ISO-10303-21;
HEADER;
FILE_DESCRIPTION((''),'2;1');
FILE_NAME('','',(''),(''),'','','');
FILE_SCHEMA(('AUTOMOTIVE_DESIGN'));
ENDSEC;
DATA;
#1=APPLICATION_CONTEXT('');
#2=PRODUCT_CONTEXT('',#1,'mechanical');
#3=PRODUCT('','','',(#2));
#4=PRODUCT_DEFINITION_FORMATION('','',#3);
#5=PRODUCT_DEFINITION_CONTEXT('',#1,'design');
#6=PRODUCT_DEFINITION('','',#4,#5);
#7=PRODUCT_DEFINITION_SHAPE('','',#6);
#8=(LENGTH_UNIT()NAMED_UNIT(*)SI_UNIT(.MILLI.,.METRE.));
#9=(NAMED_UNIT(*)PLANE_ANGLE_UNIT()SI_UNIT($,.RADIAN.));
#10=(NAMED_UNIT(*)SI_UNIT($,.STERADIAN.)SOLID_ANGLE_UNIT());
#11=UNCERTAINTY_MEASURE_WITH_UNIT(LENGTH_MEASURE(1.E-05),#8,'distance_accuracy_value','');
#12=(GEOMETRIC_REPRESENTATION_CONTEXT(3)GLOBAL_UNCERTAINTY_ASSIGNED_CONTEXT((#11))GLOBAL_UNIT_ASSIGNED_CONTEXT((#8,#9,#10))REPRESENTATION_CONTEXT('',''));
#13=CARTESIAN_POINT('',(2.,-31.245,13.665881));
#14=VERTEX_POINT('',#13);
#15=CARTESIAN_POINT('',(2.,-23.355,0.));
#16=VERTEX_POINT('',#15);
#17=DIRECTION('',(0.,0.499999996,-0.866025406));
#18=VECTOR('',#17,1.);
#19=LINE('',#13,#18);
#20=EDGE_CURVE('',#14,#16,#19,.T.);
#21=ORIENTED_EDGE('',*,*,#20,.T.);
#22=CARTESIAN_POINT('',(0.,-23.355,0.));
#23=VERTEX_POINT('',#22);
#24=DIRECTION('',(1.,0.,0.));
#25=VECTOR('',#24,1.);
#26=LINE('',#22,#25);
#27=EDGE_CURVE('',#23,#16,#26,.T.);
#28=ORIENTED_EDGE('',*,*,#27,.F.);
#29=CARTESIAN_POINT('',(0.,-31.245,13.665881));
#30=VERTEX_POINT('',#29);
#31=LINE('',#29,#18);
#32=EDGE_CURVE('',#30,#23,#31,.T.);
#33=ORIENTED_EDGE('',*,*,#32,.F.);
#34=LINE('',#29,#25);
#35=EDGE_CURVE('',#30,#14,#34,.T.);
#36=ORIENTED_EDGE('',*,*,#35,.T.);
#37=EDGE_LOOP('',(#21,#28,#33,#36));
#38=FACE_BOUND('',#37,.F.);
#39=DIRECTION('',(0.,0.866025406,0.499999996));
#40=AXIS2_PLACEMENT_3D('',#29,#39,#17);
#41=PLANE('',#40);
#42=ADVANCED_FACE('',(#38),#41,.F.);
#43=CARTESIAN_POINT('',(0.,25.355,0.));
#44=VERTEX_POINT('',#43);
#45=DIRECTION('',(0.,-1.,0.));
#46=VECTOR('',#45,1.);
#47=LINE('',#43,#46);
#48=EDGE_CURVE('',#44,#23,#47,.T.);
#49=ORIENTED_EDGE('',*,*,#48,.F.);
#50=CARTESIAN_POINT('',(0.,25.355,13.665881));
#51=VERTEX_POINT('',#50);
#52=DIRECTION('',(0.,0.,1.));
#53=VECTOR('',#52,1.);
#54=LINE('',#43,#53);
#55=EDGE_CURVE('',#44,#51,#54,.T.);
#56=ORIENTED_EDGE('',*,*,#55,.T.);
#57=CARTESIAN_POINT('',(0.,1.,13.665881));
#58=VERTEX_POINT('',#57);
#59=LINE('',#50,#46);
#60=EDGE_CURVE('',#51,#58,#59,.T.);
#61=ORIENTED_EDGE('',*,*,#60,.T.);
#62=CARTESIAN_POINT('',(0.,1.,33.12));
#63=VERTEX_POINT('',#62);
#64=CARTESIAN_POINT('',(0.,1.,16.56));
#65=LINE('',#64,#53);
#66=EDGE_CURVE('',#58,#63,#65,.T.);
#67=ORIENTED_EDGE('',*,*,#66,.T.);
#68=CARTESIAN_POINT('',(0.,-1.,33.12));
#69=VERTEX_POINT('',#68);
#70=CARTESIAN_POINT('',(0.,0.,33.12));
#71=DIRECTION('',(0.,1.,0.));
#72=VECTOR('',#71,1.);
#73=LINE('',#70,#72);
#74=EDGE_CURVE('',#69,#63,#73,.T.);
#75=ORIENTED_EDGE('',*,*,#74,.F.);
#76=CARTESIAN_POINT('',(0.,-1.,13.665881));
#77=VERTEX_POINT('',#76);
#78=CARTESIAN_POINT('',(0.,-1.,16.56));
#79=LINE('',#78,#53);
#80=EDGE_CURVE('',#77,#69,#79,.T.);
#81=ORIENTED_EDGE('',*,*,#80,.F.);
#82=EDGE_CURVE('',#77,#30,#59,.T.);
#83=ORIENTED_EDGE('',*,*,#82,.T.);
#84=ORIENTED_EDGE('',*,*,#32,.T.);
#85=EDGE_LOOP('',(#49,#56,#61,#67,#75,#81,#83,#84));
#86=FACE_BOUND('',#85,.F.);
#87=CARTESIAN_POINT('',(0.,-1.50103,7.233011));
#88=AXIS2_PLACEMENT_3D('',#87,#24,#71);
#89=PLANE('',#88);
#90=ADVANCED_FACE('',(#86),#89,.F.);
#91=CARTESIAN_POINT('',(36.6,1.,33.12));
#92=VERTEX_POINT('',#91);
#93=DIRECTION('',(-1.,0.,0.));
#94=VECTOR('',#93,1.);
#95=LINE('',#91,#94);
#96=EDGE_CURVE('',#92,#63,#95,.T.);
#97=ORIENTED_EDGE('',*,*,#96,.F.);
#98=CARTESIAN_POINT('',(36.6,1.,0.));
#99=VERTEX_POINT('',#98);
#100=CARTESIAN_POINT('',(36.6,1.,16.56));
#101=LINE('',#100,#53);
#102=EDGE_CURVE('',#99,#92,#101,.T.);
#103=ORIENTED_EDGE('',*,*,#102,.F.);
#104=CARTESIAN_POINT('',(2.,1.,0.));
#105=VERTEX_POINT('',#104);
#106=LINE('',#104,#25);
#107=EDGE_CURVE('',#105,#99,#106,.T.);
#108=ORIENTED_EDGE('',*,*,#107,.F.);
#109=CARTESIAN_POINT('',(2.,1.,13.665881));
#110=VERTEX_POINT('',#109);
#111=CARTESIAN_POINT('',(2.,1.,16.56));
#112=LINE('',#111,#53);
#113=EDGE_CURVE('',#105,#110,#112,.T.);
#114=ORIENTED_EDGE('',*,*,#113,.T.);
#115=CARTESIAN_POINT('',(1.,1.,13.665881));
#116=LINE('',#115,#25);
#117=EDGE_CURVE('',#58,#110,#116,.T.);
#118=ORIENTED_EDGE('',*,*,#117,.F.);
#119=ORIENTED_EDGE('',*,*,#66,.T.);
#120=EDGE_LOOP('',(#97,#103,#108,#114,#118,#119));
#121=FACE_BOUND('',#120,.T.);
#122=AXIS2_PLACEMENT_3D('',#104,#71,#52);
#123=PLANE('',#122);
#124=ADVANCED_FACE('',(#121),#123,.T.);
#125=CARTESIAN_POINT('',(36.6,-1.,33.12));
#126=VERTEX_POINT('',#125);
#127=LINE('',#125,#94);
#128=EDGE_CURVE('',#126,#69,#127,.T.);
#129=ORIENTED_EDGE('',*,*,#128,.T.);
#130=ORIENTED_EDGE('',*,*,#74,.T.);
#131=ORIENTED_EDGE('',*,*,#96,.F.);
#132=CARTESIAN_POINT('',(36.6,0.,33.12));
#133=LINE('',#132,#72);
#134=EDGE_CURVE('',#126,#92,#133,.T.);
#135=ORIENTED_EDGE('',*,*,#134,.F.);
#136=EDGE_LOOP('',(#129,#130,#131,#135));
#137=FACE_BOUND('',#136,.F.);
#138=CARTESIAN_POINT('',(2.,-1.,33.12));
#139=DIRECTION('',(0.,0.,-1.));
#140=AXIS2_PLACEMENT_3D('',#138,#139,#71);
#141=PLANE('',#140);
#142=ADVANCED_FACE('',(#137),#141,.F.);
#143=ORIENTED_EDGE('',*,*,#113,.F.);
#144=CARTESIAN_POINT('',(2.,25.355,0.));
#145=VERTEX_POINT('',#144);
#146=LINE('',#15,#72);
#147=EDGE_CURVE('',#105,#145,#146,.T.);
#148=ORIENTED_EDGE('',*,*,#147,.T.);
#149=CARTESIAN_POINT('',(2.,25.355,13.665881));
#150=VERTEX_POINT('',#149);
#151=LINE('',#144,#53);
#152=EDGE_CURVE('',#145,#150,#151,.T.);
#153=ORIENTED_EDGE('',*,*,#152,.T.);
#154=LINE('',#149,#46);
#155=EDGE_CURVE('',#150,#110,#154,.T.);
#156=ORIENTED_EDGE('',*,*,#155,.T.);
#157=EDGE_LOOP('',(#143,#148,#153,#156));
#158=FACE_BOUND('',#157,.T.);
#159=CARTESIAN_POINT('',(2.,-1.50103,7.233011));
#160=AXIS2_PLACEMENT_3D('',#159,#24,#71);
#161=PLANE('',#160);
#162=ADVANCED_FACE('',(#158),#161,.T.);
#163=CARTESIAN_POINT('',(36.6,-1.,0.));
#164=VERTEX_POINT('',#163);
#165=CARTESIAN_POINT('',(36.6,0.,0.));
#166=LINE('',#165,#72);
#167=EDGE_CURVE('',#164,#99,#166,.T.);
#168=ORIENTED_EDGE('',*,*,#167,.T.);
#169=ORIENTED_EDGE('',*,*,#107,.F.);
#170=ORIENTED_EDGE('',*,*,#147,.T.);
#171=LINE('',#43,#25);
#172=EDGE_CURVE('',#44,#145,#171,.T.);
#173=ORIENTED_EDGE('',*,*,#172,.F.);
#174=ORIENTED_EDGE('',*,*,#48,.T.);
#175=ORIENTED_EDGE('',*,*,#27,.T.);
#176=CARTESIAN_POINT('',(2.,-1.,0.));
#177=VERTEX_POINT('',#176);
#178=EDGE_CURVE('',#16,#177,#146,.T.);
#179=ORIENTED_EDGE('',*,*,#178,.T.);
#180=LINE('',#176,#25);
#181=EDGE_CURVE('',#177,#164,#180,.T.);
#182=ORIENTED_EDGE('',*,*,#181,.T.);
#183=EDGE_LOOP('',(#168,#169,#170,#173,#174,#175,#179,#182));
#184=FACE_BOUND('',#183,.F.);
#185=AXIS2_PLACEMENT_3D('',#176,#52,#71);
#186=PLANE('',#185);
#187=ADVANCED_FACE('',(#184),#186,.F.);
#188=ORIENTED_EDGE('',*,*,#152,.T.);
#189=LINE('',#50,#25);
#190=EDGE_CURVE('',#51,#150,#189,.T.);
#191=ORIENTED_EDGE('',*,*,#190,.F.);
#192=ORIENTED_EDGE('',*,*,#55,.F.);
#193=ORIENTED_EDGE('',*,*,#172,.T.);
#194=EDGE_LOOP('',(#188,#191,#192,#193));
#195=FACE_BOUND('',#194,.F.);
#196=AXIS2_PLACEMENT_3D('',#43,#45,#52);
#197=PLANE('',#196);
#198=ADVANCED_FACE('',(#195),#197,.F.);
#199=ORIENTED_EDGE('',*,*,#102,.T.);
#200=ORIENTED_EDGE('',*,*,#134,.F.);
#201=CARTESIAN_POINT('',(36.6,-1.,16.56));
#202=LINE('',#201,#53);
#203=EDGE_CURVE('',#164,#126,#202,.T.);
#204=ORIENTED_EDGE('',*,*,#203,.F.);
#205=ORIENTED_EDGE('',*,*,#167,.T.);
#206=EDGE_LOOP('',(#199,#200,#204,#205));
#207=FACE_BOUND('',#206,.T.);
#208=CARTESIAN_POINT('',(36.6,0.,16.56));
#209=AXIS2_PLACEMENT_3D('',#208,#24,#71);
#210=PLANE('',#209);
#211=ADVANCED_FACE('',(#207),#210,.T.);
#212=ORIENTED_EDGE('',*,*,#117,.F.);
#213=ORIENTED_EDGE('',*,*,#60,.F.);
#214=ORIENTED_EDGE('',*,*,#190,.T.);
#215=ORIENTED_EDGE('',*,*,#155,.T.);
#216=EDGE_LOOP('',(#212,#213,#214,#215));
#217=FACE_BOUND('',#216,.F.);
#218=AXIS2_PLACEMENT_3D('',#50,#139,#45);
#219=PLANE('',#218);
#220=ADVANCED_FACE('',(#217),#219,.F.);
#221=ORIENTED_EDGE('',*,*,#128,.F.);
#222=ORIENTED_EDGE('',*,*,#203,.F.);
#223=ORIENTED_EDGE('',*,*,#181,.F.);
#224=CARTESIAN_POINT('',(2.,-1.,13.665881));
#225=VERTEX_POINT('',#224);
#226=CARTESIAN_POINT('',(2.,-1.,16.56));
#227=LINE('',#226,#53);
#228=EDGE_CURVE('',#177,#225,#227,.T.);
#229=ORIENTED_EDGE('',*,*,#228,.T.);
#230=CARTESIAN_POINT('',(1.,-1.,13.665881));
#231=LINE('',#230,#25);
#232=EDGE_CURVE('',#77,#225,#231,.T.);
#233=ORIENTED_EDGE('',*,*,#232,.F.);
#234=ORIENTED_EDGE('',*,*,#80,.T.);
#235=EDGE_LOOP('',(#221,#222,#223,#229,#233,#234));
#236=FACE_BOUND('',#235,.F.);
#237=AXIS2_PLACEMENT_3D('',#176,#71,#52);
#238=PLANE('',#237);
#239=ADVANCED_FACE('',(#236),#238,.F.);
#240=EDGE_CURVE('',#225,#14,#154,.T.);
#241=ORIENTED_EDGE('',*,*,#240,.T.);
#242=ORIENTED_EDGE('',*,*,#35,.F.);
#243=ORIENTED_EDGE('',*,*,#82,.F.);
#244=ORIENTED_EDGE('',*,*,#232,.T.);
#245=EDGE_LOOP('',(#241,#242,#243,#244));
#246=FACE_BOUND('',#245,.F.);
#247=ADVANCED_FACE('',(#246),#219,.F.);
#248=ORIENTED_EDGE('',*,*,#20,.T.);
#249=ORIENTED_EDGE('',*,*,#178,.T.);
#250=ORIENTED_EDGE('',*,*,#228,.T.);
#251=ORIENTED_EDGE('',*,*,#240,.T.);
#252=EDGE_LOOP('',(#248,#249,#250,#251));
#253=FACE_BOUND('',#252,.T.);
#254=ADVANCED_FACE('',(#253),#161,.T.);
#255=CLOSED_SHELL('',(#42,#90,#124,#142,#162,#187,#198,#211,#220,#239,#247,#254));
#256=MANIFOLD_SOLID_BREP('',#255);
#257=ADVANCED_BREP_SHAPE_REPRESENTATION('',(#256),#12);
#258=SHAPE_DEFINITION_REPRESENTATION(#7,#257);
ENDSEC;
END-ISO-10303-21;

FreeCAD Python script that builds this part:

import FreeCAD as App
import Part
import Sketcher
Q = App.Units.Quantity

doc = App.newDocument("Part")
params = doc.addObject("Spreadsheet::Sheet", "Params")
for row, (alias, value) in enumerate([
    ("sketch1_width", "56.6 mm"),
    ("sketch1_width2", "48.71 mm"),
    ("pad1_length", "2 mm"),
    ("sketch2_width", "2 mm"),
    ("sketch2_height", "33.12 mm"),
    ("pad2_length", "34.6 mm"),
    ("pad2_length2", "2 mm"),
], start=1):
    params.set(f"A{row}", alias)
    params.set(f"B{row}", "=" + value)
    params.setAlias(f"B{row}", alias)

body = doc.addObject("PartDesign::Body", "Body")

sketch1 = doc.addObject("Sketcher::SketchObject", "Sketch")
body.addObject(sketch1)
sketch1.AttachmentSupport = (doc.YZ_Plane, [""])
sketch1.MapMode = "FlatFace"
sketch1.addGeometry([
    Part.LineSegment(App.Vector(-23, 0, 0), App.Vector(25, 0, 0)),
    Part.LineSegment(App.Vector(25, 0, 0), App.Vector(25, 14, 0)),
    Part.LineSegment(App.Vector(25, 14, 0), App.Vector(-31, 14, 0)),
    Part.LineSegment(App.Vector(-31, 14, 0), App.Vector(-23, 0, 0)),
], False)
sketch1.addConstraint([
    Sketcher.Constraint("Coincident", 0, 2, 1, 1),
    Sketcher.Constraint("Coincident", 1, 2, 2, 1),
    Sketcher.Constraint("Coincident", 2, 2, 3, 1),
    Sketcher.Constraint("Coincident", 3, 2, 0, 1),
    Sketcher.Constraint("Horizontal", 0),
    Sketcher.Constraint("Vertical", 1),
    Sketcher.Constraint("Horizontal", 2),
    Sketcher.Constraint("PointOnObject", 0, 2, -1),
    Sketcher.Constraint("Angle", 3, Q("-60 deg")),
    Sketcher.Constraint("DistanceX", 2, 2, 2, 1, Q("56.6 mm")),
    Sketcher.Constraint("DistanceX", 0, 1, 0, 2, Q("48.71 mm")),
    Sketcher.Constraint("DistanceX", -1, 1, 0, 2, Q("25.355 mm")),
])
sketch1.setExpression("Constraints[9]", "Params.sketch1_width")
sketch1.setExpression("Constraints[10]", "Params.sketch1_width2")
pad1 = doc.addObject("PartDesign::Pad", "Pad")
body.addObject(pad1)
pad1.Profile = sketch1
pad1.setExpression("Length", "Params.pad1_length")

sketch2 = doc.addObject("Sketcher::SketchObject", "Sketch001")
body.addObject(sketch2)
sketch2.AttachmentSupport = (doc.YZ_Plane, [""])
sketch2.MapMode = "FlatFace"
sketch2.AttachmentOffset = App.Placement(App.Vector(0, 0, 2), App.Rotation())
sketch2.addGeometry([
    Part.LineSegment(App.Vector(-1, 33.1, 0), App.Vector(-1, 0, 0)),
    Part.LineSegment(App.Vector(-1, 0, 0), App.Vector(1, 0, 0)),
    Part.LineSegment(App.Vector(1, 0, 0), App.Vector(1, 33.1, 0)),
    Part.LineSegment(App.Vector(1, 33.1, 0), App.Vector(-1, 33.1, 0)),
], False)
sketch2.addConstraint([
    Sketcher.Constraint("Coincident", 0, 2, 1, 1),
    Sketcher.Constraint("Coincident", 1, 2, 2, 1),
    Sketcher.Constraint("Coincident", 2, 2, 3, 1),
    Sketcher.Constraint("Coincident", 3, 2, 0, 1),
    Sketcher.Constraint("Vertical", 0),
    Sketcher.Constraint("Horizontal", 1),
    Sketcher.Constraint("Vertical", 2),
    Sketcher.Constraint("Horizontal", 3),
    Sketcher.Constraint("Symmetric", 0, 2, 1, 2, -1, 1),
    Sketcher.Constraint("DistanceX", 1, 1, 1, 2, Q("2 mm")),
    Sketcher.Constraint("DistanceY", 0, 2, 0, 1, Q("33.12 mm")),
])
sketch2.setExpression("Constraints[9]", "Params.sketch2_width")
sketch2.setExpression("Constraints[10]", "Params.sketch2_height")
pad2 = doc.addObject("PartDesign::Pad", "Pad001")
body.addObject(pad2)
pad2.Profile = sketch2
pad2.Type = "TwoLengths"
pad2.setExpression("Length", "Params.pad2_length")
pad2.setExpression("Length2", "Params.pad2_length2")

doc.recompute()
